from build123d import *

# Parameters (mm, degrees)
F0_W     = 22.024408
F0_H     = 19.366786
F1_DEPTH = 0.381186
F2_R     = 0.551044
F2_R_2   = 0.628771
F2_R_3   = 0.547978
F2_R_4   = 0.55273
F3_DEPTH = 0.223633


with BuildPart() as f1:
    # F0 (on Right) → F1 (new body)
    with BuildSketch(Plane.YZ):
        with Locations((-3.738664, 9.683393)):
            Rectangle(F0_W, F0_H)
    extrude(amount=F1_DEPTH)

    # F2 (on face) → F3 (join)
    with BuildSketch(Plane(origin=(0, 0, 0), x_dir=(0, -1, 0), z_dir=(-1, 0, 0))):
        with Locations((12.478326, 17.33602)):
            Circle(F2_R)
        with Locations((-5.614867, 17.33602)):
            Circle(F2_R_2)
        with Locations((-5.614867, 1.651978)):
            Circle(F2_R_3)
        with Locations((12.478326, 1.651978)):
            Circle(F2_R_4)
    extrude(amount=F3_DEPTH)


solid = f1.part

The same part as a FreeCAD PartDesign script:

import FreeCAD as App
import Part
import Sketcher

V = App.Vector
Q = App.Units.Quantity


def add_polygon(sketch, points):
    """Adds a closed chain of lines whose ends are joined by coincident constraints."""
    first, n = sketch.GeometryCount, len(points)
    for a, b in zip(points, points[1:] + points[:1]):
        sketch.addGeometry(Part.LineSegment(App.Vector(*a, 0), App.Vector(*b, 0)), False)
    for i in range(n):
        sketch.addConstraint(Sketcher.Constraint("Coincident", first + i, 2, first + (i + 1) % n, 1))

doc = App.newDocument("Part")
params = doc.addObject("Spreadsheet::Sheet", "Params")
for row, (alias, value) in enumerate([
    ("pad1_length", "0.381186 mm"),
    ("pad2_length", "0.223633 mm"),
], start=1):
    params.set(f"A{row}", alias)
    params.set(f"B{row}", "=" + value)
    params.setAlias(f"B{row}", alias)

body = doc.addObject("PartDesign::Body", "Body")

# Sketch on YZ plane
sketch1 = body.newObject("Sketcher::SketchObject", "Sketch")
sketch1.AttachmentSupport = (doc.getObject("YZ_Plane"), [""])
sketch1.MapMode = "FlatFace"
add_polygon(sketch1, [(-14.750868, 19.366786), (-14.750868, 0), (7.27354, 0), (7.27354, 19.366786)])  # lines 0-3
sketch1.addConstraint([
    Sketcher.Constraint("Vertical", 0),
    Sketcher.Constraint("Horizontal", 1),
    Sketcher.Constraint("Vertical", 2),
    Sketcher.Constraint("Horizontal", 3),
    Sketcher.Constraint("PointOnObject", 0, 2, -1),
    Sketcher.Constraint("DistanceX", 1, 1, 1, 2, Q("22.024408 mm")),
    Sketcher.Constraint("DistanceY", 0, 2, 0, 1, Q("19.366786 mm")),
    Sketcher.Constraint("DistanceX", -1, 1, 1, 2, Q("7.27354 mm")),
])
pad1 = body.newObject("PartDesign::Pad", "Pad")
pad1.Profile = sketch1
pad1.setExpression("Length", "Params.pad1_length")

# Sketch on YZ plane
sketch2 = body.newObject("Sketcher::SketchObject", "Sketch001")
sketch2.AttachmentSupport = (doc.getObject("YZ_Plane"), [""])
sketch2.MapMode = "FlatFace"
sketch2.addGeometry([
    Part.Circle(V(-12.478326, 17.33602, 0), V(0, 0, 1), 0.551044),
    Part.Circle(V(5.614867, 17.33602, 0), V(0, 0, 1), 0.628771),
    Part.Circle(V(5.614867, 1.651978, 0), V(0, 0, 1), 0.547978),
    Part.Circle(V(-12.478326, 1.651978, 0), V(0, 0, 1), 0.55273),
], False)
sketch2.addConstraint([
    Sketcher.Constraint("Horizontal", 0, 3, 1, 3),
    Sketcher.Constraint("Horizontal", 2, 3, 3, 3),
    Sketcher.Constraint("Vertical", 1, 3, 2, 3),
    Sketcher.Constraint("Vertical", 0, 3, 3, 3),
    Sketcher.Constraint("Diameter", 1, Q("1.257542 mm")),
    Sketcher.Constraint("Diameter", 3, Q("1.10546 mm")),
    Sketcher.Constraint("Diameter", 0, Q("1.102088 mm")),
    Sketcher.Constraint("Diameter", 2, Q("1.095956 mm")),
    Sketcher.Constraint("DistanceY", -1, 1, 0, 3, Q("17.33602 mm")),
    Sketcher.Constraint("DistanceX", 0, 3, -1, 1, Q("12.478326 mm")),
    Sketcher.Constraint("DistanceX", -1, 1, 1, 3, Q("5.614867 mm")),
    Sketcher.Constraint("DistanceY", -1, 1, 2, 3, Q("1.651978 mm")),
])
pad2 = body.newObject("PartDesign::Pad", "Pad001")
pad2.Profile = sketch2
pad2.setExpression("Length", "Params.pad2_length")
pad2.Reversed = True

doc.recompute()
